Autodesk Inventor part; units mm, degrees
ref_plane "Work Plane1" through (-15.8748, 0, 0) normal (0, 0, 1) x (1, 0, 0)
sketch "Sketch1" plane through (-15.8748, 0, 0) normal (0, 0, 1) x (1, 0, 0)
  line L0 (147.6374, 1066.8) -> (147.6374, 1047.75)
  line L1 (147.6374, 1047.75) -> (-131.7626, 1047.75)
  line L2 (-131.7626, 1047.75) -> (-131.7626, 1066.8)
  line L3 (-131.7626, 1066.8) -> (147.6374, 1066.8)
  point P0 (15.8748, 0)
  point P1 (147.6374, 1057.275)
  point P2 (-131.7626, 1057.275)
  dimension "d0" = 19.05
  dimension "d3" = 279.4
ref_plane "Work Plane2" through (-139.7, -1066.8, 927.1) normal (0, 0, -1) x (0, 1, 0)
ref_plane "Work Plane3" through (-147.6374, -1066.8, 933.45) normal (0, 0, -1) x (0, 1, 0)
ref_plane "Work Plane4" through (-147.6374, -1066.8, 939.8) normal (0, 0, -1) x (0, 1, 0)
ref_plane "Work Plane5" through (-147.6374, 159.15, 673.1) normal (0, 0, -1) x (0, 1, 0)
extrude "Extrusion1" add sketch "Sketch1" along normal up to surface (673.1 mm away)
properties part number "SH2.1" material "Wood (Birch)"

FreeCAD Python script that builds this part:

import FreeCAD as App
import Part
import Sketcher
Q = App.Units.Quantity

doc = App.newDocument("Part")
params = doc.addObject("Spreadsheet::Sheet", "Params")
for row, (alias, value) in enumerate([
    ("sketch1_width", "11 in"),
    ("sketch1_height", "0.75 in"),
    ("pad1_length", "26.5 in"),
], start=1):
    params.set(f"A{row}", alias)
    params.set(f"B{row}", "=" + value)
    params.setAlias(f"B{row}", alias)

body = doc.addObject("PartDesign::Body", "Body")

# Sketch on XY plane
sketch1 = body.newObject("Sketcher::SketchObject", "Sketch")
sketch1.AttachmentSupport = (doc.getObject("XY_Plane"), [""])
sketch1.MapMode = "FlatFace"
sketch1.addGeometry([
    Part.LineSegment(App.Vector(132, 1048, 0), App.Vector(132, 1067, 0)),
    Part.LineSegment(App.Vector(132, 1067, 0), App.Vector(-148, 1067, 0)),
    Part.LineSegment(App.Vector(-148, 1067, 0), App.Vector(-148, 1048, 0)),
    Part.LineSegment(App.Vector(-148, 1048, 0), App.Vector(132, 1048, 0)),
], False)
sketch1.addConstraint([
    Sketcher.Constraint("Coincident", 0, 2, 1, 1),
    Sketcher.Constraint("Coincident", 1, 2, 2, 1),
    Sketcher.Constraint("Coincident", 2, 2, 3, 1),
    Sketcher.Constraint("Coincident", 3, 2, 0, 1),
    Sketcher.Constraint("Vertical", 0),
    Sketcher.Constraint("Horizontal", 1),
    Sketcher.Constraint("Vertical", 2),
    Sketcher.Constraint("Horizontal", 3),
    Sketcher.Constraint("DistanceX", 1, 2, 1, 1, Q("11 in")),
    Sketcher.Constraint("DistanceY", 0, 1, 0, 2, Q("0.75 in")),
    Sketcher.Constraint("DistanceY", -1, 1, 0, 2, Q("42 in")),
    Sketcher.Constraint("DistanceX", -1, 1, 0, 2, Q("5.1875 in")),
])
sketch1.setExpression("Constraints[8]", "Params.sketch1_width")
sketch1.setExpression("Constraints[9]", "Params.sketch1_height")
pad1 = body.newObject("PartDesign::Pad", "Pad")
pad1.Profile = sketch1
pad1.setExpression("Length", "Params.pad1_length")

doc.recompute()
